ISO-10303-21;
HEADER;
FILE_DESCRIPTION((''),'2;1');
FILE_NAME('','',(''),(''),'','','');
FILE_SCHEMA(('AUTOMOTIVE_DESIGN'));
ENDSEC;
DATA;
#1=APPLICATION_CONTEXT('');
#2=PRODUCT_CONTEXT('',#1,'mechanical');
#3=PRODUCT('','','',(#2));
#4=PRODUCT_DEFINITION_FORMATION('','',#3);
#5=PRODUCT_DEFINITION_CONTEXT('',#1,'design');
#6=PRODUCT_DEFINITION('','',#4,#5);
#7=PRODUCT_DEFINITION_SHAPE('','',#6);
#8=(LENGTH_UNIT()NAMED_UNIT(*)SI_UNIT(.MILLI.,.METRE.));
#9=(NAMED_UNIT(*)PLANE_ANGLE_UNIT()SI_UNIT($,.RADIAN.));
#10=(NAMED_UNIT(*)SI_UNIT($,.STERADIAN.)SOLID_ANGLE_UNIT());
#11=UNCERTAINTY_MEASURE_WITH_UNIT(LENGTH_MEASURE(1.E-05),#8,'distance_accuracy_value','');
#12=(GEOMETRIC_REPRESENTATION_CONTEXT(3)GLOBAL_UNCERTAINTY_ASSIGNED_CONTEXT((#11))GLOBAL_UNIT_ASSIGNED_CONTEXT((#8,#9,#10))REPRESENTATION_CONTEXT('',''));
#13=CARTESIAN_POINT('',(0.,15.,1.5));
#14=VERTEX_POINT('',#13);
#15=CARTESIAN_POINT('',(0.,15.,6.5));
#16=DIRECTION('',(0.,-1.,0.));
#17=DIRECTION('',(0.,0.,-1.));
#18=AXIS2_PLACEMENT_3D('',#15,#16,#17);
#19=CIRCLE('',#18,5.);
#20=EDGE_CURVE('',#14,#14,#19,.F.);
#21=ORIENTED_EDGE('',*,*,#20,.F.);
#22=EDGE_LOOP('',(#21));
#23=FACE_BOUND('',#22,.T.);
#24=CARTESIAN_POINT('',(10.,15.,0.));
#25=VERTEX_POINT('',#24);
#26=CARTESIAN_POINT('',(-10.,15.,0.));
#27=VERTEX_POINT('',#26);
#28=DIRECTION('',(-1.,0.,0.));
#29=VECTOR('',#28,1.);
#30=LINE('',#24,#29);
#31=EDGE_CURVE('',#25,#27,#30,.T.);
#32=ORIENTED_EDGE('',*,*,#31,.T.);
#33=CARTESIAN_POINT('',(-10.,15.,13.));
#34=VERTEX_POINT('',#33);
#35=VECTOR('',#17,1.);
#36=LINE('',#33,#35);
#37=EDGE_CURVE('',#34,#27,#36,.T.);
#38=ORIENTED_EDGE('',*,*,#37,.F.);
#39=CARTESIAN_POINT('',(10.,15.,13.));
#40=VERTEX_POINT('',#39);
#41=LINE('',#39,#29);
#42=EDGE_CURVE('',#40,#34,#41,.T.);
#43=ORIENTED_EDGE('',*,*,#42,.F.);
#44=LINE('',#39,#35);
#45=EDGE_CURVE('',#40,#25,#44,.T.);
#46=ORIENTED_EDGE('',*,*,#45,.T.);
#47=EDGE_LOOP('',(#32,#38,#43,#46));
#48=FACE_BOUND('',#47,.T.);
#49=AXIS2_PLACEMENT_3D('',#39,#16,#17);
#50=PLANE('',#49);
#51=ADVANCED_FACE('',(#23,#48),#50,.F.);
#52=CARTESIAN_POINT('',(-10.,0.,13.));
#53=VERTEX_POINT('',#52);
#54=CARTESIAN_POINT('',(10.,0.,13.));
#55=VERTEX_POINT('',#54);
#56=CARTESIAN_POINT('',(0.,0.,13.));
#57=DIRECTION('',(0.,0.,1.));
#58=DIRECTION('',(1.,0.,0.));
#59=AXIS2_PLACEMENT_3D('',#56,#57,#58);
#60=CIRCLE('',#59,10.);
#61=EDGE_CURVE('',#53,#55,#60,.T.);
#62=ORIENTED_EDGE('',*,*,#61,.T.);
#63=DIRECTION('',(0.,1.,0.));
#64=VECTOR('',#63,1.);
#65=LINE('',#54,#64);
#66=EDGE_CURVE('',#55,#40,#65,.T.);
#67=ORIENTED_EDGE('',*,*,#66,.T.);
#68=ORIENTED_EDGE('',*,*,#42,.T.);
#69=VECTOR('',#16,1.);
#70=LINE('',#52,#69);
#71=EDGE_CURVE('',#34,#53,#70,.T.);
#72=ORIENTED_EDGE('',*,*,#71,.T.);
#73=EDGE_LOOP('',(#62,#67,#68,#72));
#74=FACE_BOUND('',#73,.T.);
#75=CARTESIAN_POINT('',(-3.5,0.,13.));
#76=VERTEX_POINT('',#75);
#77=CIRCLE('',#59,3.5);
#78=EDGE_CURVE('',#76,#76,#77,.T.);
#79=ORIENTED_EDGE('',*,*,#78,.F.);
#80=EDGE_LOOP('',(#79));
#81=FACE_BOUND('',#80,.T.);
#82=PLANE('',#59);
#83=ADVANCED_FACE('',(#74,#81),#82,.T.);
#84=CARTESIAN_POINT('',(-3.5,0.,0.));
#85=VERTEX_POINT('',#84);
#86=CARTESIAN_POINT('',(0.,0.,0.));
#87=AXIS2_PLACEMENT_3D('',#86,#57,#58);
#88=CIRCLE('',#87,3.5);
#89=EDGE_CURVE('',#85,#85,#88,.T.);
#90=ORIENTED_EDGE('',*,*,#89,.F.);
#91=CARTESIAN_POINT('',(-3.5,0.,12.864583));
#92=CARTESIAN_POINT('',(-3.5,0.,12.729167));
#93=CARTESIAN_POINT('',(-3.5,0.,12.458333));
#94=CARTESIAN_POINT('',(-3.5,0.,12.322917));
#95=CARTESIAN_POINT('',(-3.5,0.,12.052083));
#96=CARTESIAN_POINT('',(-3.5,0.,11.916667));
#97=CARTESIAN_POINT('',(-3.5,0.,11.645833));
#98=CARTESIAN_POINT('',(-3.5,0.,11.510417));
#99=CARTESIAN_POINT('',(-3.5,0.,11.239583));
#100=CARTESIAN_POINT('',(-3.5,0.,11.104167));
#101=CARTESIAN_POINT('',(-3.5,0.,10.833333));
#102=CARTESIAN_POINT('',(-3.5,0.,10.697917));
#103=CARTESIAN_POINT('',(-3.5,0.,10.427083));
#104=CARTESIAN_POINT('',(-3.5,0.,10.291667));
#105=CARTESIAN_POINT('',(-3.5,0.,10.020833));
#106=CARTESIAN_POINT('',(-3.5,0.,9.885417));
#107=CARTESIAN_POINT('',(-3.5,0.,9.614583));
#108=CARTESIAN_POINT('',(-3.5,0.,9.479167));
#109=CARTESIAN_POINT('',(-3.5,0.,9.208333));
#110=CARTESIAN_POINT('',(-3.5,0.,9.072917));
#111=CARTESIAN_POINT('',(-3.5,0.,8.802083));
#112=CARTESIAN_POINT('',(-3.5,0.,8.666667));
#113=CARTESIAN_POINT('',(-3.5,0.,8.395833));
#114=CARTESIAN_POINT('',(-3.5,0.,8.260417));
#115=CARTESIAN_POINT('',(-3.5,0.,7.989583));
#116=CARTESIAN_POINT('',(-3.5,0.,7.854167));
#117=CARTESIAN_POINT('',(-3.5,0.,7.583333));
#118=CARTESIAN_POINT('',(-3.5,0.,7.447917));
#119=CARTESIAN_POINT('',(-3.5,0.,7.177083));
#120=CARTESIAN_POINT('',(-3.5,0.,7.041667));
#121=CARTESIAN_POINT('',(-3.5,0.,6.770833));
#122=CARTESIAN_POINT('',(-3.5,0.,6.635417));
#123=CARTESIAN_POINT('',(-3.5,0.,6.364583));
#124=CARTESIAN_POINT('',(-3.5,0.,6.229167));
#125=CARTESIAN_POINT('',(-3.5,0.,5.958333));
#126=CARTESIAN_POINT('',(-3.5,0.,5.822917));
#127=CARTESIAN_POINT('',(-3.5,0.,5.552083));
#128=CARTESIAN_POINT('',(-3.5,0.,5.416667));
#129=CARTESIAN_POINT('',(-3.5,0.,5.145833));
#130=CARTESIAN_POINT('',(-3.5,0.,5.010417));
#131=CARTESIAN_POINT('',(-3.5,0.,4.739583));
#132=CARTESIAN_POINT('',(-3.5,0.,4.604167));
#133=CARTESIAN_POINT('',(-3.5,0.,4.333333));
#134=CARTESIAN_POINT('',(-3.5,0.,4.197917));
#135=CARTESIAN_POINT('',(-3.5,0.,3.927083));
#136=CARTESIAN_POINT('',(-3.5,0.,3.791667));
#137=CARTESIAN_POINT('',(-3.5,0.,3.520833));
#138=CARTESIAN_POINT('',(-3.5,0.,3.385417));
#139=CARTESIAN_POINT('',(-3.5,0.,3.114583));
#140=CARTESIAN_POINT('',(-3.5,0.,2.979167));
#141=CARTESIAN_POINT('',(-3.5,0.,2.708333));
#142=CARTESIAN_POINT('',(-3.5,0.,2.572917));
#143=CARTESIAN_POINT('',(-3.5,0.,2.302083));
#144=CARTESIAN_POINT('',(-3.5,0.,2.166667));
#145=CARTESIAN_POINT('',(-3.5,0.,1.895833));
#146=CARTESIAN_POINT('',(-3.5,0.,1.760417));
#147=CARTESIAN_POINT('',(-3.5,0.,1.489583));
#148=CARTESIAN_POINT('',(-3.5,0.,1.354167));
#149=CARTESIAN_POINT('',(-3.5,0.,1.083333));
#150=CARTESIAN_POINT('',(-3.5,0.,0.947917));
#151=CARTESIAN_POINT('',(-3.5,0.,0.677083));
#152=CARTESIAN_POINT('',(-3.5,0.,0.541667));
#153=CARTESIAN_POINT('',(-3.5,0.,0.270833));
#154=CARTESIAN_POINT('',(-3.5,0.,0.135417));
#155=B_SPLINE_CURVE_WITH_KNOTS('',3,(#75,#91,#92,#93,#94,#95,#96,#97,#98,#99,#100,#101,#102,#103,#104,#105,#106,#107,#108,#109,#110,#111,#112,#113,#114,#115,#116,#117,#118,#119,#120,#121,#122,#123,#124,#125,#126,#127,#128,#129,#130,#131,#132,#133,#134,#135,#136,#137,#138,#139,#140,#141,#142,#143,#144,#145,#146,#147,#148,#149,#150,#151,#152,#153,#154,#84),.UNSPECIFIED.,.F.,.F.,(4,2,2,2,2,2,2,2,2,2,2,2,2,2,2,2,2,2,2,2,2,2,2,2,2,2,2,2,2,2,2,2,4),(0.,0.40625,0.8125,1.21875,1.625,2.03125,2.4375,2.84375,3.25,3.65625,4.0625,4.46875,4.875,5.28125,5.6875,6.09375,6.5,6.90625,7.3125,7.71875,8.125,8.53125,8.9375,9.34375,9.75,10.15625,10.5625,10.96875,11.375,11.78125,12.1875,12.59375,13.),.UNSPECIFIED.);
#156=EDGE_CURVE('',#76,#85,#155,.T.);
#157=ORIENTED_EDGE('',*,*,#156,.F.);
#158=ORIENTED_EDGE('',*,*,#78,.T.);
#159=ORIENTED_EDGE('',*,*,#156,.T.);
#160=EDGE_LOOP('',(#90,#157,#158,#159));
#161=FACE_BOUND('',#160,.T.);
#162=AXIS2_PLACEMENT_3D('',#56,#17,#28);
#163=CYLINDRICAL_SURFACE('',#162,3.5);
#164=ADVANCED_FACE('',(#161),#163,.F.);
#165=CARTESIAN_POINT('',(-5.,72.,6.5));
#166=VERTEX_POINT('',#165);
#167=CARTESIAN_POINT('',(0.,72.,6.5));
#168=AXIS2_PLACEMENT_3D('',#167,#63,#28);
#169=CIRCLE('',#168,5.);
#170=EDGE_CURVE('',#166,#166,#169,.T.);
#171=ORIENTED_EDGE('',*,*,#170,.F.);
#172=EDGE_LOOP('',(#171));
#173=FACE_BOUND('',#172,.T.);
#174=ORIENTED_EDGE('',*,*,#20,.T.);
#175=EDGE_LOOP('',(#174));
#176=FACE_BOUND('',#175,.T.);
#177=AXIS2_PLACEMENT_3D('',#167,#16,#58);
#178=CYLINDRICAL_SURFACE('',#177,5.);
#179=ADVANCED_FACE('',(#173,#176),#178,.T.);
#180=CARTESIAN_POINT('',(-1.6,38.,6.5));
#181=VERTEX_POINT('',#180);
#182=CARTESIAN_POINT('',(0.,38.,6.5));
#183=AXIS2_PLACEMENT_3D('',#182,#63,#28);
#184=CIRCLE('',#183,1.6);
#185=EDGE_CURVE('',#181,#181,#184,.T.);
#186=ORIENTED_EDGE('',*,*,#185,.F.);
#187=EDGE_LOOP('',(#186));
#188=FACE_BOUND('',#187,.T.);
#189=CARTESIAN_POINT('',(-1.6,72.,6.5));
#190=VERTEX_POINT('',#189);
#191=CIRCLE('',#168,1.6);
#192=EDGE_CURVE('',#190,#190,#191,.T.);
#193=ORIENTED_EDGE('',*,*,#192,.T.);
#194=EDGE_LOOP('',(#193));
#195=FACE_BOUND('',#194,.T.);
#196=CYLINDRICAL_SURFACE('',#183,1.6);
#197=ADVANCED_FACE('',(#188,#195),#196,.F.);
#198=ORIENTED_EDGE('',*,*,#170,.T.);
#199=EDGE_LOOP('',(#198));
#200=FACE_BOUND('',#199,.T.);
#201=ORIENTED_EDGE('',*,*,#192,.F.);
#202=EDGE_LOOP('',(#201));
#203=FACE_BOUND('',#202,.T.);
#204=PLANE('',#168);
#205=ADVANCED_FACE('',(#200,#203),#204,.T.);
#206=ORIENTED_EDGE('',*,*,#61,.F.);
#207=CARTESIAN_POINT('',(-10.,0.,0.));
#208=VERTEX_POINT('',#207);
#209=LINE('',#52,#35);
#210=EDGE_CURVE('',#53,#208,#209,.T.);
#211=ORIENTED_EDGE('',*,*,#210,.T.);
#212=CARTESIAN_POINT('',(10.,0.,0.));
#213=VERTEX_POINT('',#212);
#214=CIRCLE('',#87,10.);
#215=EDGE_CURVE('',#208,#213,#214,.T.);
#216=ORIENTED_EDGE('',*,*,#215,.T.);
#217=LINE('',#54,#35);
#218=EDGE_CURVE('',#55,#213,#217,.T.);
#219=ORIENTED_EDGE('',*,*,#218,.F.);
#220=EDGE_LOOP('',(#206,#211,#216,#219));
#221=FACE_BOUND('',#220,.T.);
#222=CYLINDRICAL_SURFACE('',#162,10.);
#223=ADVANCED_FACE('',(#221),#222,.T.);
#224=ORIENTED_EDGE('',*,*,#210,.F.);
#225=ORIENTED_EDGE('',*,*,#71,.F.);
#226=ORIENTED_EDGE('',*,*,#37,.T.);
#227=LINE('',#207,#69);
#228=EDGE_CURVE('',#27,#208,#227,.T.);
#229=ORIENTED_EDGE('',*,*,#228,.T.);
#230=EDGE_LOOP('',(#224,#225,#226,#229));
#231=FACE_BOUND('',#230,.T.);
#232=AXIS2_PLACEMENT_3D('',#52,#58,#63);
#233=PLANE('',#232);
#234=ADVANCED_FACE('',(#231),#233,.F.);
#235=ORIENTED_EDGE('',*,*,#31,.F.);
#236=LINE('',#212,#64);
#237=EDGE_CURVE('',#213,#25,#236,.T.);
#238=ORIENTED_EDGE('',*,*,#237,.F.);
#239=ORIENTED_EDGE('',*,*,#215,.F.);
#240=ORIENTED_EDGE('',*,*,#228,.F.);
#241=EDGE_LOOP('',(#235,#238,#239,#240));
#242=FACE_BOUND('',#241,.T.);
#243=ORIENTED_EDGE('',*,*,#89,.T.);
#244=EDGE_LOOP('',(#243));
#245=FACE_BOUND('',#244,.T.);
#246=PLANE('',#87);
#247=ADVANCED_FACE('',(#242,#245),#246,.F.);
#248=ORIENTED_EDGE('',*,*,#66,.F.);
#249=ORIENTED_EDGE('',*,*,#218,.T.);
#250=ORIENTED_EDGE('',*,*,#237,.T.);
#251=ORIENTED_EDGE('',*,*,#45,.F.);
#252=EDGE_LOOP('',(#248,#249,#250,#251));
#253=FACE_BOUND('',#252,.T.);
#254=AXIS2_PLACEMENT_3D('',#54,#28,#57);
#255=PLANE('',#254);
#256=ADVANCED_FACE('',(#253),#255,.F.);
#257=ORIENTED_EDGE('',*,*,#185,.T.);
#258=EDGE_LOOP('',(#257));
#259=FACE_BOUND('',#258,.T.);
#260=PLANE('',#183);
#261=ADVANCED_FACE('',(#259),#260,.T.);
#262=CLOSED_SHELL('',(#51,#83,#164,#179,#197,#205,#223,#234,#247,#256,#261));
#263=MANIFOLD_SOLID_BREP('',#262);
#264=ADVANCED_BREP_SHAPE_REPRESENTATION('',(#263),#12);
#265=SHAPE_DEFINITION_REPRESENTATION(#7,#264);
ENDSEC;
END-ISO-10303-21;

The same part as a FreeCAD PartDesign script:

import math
import FreeCAD as App
import Part
import Sketcher

V = App.Vector

doc = App.newDocument("Part")
body = doc.addObject("PartDesign::Body", "Body")

# Sketch on XY plane
sketch1 = body.newObject("Sketcher::SketchObject", "Sketch")
sketch1.AttachmentSupport = (doc.getObject("XY_Plane"), [""])
sketch1.MapMode = "FlatFace"
sketch1.addGeometry(Part.LineSegment(V(-10, 15, 0), V(-10, 0, 0)), False)
sketch1.addGeometry(Part.ArcOfCircle(Part.Circle(V(0, 0, 0), V(0, 0, 1), 10), math.radians(180), math.radians(360)), False)
sketch1.addGeometry(Part.LineSegment(V(10, 0, 0), V(10, 15, 0)), False)
sketch1.addGeometry(Part.LineSegment(V(10, 15, 0), V(-10, 15, 0)), False)
sketch1.addGeometry(Part.Circle(V(0, 0, 0), V(0, 0, 1), 3.5), False)
sketch1.addConstraint(Sketcher.Constraint("Tangent", 0, 2, 1, 1))
sketch1.addConstraint(Sketcher.Constraint("Tangent", 1, 2, 2, 1))
sketch1.addConstraint(Sketcher.Constraint("Coincident", 2, 2, 3, 1))
sketch1.addConstraint(Sketcher.Constraint("Coincident", 3, 2, 0, 1))
sketch1.addConstraint(Sketcher.Constraint("Vertical", 0))
sketch1.addConstraint(Sketcher.Constraint("Vertical", 2))
sketch1.addConstraint(Sketcher.Constraint("Horizontal", 3))
sketch1.addConstraint(Sketcher.Constraint("Coincident", 1, 3, -1, 1))
sketch1.addConstraint(Sketcher.Constraint("Coincident", 4, 3, -1, 1))
sketch1.addConstraint(Sketcher.Constraint("Diameter", 4, 7.0))
sketch1.addConstraint(Sketcher.Constraint("Radius", 1, 10.0))
sketch1.addConstraint(Sketcher.Constraint("DistanceY", 0, 2, 0, 1, 15.0))
pad1 = body.newObject("PartDesign::Pad", "Pad")
pad1.Profile = sketch1
pad1.Length = 13

# Sketch on XZ plane
sketch2 = body.newObject("Sketcher::SketchObject", "Sketch001")
sketch2.AttachmentSupport = (doc.getObject("XZ_Plane"), [""])
sketch2.MapMode = "FlatFace"
sketch2.AttachmentOffset = App.Placement(V(0, 0, -15), App.Rotation())
sketch2.addGeometry(Part.Circle(V(0, 6, 0), V(0, 0, 1), 5), False)
sketch2.addConstraint(Sketcher.Constraint("PointOnObject", 0, 3, -2))
sketch2.addConstraint(Sketcher.Constraint("Diameter", 0, 10.0))
sketch2.addConstraint(Sketcher.Constraint("DistanceY", -1, 1, 0, 3, 6.5))
pad2 = body.newObject("PartDesign::Pad", "Pad001")
pad2.Profile = sketch2
pad2.Length = 57
pad2.Reversed = True

# Sketch on XZ plane
sketch3 = body.newObject("Sketcher::SketchObject", "Sketch002")
sketch3.AttachmentSupport = (doc.getObject("XZ_Plane"), [""])
sketch3.MapMode = "FlatFace"
sketch3.AttachmentOffset = App.Placement(V(0, 0, -72), App.Rotation())
sketch3.addGeometry(Part.Circle(V(0, 6.5, 0), V(0, 0, 1), 1.6), False)
sketch3.addConstraint(Sketcher.Constraint("PointOnObject", 0, 3, -2))
sketch3.addConstraint(Sketcher.Constraint("Diameter", 0, 3.2))
sketch3.addConstraint(Sketcher.Constraint("DistanceY", -1, 1, 0, 3, 6.5))
pocket1 = body.newObject("PartDesign::Pocket", "Pocket")
pocket1.Profile = sketch3
pocket1.Length = 34
pocket1.Reversed = True

doc.recompute()
